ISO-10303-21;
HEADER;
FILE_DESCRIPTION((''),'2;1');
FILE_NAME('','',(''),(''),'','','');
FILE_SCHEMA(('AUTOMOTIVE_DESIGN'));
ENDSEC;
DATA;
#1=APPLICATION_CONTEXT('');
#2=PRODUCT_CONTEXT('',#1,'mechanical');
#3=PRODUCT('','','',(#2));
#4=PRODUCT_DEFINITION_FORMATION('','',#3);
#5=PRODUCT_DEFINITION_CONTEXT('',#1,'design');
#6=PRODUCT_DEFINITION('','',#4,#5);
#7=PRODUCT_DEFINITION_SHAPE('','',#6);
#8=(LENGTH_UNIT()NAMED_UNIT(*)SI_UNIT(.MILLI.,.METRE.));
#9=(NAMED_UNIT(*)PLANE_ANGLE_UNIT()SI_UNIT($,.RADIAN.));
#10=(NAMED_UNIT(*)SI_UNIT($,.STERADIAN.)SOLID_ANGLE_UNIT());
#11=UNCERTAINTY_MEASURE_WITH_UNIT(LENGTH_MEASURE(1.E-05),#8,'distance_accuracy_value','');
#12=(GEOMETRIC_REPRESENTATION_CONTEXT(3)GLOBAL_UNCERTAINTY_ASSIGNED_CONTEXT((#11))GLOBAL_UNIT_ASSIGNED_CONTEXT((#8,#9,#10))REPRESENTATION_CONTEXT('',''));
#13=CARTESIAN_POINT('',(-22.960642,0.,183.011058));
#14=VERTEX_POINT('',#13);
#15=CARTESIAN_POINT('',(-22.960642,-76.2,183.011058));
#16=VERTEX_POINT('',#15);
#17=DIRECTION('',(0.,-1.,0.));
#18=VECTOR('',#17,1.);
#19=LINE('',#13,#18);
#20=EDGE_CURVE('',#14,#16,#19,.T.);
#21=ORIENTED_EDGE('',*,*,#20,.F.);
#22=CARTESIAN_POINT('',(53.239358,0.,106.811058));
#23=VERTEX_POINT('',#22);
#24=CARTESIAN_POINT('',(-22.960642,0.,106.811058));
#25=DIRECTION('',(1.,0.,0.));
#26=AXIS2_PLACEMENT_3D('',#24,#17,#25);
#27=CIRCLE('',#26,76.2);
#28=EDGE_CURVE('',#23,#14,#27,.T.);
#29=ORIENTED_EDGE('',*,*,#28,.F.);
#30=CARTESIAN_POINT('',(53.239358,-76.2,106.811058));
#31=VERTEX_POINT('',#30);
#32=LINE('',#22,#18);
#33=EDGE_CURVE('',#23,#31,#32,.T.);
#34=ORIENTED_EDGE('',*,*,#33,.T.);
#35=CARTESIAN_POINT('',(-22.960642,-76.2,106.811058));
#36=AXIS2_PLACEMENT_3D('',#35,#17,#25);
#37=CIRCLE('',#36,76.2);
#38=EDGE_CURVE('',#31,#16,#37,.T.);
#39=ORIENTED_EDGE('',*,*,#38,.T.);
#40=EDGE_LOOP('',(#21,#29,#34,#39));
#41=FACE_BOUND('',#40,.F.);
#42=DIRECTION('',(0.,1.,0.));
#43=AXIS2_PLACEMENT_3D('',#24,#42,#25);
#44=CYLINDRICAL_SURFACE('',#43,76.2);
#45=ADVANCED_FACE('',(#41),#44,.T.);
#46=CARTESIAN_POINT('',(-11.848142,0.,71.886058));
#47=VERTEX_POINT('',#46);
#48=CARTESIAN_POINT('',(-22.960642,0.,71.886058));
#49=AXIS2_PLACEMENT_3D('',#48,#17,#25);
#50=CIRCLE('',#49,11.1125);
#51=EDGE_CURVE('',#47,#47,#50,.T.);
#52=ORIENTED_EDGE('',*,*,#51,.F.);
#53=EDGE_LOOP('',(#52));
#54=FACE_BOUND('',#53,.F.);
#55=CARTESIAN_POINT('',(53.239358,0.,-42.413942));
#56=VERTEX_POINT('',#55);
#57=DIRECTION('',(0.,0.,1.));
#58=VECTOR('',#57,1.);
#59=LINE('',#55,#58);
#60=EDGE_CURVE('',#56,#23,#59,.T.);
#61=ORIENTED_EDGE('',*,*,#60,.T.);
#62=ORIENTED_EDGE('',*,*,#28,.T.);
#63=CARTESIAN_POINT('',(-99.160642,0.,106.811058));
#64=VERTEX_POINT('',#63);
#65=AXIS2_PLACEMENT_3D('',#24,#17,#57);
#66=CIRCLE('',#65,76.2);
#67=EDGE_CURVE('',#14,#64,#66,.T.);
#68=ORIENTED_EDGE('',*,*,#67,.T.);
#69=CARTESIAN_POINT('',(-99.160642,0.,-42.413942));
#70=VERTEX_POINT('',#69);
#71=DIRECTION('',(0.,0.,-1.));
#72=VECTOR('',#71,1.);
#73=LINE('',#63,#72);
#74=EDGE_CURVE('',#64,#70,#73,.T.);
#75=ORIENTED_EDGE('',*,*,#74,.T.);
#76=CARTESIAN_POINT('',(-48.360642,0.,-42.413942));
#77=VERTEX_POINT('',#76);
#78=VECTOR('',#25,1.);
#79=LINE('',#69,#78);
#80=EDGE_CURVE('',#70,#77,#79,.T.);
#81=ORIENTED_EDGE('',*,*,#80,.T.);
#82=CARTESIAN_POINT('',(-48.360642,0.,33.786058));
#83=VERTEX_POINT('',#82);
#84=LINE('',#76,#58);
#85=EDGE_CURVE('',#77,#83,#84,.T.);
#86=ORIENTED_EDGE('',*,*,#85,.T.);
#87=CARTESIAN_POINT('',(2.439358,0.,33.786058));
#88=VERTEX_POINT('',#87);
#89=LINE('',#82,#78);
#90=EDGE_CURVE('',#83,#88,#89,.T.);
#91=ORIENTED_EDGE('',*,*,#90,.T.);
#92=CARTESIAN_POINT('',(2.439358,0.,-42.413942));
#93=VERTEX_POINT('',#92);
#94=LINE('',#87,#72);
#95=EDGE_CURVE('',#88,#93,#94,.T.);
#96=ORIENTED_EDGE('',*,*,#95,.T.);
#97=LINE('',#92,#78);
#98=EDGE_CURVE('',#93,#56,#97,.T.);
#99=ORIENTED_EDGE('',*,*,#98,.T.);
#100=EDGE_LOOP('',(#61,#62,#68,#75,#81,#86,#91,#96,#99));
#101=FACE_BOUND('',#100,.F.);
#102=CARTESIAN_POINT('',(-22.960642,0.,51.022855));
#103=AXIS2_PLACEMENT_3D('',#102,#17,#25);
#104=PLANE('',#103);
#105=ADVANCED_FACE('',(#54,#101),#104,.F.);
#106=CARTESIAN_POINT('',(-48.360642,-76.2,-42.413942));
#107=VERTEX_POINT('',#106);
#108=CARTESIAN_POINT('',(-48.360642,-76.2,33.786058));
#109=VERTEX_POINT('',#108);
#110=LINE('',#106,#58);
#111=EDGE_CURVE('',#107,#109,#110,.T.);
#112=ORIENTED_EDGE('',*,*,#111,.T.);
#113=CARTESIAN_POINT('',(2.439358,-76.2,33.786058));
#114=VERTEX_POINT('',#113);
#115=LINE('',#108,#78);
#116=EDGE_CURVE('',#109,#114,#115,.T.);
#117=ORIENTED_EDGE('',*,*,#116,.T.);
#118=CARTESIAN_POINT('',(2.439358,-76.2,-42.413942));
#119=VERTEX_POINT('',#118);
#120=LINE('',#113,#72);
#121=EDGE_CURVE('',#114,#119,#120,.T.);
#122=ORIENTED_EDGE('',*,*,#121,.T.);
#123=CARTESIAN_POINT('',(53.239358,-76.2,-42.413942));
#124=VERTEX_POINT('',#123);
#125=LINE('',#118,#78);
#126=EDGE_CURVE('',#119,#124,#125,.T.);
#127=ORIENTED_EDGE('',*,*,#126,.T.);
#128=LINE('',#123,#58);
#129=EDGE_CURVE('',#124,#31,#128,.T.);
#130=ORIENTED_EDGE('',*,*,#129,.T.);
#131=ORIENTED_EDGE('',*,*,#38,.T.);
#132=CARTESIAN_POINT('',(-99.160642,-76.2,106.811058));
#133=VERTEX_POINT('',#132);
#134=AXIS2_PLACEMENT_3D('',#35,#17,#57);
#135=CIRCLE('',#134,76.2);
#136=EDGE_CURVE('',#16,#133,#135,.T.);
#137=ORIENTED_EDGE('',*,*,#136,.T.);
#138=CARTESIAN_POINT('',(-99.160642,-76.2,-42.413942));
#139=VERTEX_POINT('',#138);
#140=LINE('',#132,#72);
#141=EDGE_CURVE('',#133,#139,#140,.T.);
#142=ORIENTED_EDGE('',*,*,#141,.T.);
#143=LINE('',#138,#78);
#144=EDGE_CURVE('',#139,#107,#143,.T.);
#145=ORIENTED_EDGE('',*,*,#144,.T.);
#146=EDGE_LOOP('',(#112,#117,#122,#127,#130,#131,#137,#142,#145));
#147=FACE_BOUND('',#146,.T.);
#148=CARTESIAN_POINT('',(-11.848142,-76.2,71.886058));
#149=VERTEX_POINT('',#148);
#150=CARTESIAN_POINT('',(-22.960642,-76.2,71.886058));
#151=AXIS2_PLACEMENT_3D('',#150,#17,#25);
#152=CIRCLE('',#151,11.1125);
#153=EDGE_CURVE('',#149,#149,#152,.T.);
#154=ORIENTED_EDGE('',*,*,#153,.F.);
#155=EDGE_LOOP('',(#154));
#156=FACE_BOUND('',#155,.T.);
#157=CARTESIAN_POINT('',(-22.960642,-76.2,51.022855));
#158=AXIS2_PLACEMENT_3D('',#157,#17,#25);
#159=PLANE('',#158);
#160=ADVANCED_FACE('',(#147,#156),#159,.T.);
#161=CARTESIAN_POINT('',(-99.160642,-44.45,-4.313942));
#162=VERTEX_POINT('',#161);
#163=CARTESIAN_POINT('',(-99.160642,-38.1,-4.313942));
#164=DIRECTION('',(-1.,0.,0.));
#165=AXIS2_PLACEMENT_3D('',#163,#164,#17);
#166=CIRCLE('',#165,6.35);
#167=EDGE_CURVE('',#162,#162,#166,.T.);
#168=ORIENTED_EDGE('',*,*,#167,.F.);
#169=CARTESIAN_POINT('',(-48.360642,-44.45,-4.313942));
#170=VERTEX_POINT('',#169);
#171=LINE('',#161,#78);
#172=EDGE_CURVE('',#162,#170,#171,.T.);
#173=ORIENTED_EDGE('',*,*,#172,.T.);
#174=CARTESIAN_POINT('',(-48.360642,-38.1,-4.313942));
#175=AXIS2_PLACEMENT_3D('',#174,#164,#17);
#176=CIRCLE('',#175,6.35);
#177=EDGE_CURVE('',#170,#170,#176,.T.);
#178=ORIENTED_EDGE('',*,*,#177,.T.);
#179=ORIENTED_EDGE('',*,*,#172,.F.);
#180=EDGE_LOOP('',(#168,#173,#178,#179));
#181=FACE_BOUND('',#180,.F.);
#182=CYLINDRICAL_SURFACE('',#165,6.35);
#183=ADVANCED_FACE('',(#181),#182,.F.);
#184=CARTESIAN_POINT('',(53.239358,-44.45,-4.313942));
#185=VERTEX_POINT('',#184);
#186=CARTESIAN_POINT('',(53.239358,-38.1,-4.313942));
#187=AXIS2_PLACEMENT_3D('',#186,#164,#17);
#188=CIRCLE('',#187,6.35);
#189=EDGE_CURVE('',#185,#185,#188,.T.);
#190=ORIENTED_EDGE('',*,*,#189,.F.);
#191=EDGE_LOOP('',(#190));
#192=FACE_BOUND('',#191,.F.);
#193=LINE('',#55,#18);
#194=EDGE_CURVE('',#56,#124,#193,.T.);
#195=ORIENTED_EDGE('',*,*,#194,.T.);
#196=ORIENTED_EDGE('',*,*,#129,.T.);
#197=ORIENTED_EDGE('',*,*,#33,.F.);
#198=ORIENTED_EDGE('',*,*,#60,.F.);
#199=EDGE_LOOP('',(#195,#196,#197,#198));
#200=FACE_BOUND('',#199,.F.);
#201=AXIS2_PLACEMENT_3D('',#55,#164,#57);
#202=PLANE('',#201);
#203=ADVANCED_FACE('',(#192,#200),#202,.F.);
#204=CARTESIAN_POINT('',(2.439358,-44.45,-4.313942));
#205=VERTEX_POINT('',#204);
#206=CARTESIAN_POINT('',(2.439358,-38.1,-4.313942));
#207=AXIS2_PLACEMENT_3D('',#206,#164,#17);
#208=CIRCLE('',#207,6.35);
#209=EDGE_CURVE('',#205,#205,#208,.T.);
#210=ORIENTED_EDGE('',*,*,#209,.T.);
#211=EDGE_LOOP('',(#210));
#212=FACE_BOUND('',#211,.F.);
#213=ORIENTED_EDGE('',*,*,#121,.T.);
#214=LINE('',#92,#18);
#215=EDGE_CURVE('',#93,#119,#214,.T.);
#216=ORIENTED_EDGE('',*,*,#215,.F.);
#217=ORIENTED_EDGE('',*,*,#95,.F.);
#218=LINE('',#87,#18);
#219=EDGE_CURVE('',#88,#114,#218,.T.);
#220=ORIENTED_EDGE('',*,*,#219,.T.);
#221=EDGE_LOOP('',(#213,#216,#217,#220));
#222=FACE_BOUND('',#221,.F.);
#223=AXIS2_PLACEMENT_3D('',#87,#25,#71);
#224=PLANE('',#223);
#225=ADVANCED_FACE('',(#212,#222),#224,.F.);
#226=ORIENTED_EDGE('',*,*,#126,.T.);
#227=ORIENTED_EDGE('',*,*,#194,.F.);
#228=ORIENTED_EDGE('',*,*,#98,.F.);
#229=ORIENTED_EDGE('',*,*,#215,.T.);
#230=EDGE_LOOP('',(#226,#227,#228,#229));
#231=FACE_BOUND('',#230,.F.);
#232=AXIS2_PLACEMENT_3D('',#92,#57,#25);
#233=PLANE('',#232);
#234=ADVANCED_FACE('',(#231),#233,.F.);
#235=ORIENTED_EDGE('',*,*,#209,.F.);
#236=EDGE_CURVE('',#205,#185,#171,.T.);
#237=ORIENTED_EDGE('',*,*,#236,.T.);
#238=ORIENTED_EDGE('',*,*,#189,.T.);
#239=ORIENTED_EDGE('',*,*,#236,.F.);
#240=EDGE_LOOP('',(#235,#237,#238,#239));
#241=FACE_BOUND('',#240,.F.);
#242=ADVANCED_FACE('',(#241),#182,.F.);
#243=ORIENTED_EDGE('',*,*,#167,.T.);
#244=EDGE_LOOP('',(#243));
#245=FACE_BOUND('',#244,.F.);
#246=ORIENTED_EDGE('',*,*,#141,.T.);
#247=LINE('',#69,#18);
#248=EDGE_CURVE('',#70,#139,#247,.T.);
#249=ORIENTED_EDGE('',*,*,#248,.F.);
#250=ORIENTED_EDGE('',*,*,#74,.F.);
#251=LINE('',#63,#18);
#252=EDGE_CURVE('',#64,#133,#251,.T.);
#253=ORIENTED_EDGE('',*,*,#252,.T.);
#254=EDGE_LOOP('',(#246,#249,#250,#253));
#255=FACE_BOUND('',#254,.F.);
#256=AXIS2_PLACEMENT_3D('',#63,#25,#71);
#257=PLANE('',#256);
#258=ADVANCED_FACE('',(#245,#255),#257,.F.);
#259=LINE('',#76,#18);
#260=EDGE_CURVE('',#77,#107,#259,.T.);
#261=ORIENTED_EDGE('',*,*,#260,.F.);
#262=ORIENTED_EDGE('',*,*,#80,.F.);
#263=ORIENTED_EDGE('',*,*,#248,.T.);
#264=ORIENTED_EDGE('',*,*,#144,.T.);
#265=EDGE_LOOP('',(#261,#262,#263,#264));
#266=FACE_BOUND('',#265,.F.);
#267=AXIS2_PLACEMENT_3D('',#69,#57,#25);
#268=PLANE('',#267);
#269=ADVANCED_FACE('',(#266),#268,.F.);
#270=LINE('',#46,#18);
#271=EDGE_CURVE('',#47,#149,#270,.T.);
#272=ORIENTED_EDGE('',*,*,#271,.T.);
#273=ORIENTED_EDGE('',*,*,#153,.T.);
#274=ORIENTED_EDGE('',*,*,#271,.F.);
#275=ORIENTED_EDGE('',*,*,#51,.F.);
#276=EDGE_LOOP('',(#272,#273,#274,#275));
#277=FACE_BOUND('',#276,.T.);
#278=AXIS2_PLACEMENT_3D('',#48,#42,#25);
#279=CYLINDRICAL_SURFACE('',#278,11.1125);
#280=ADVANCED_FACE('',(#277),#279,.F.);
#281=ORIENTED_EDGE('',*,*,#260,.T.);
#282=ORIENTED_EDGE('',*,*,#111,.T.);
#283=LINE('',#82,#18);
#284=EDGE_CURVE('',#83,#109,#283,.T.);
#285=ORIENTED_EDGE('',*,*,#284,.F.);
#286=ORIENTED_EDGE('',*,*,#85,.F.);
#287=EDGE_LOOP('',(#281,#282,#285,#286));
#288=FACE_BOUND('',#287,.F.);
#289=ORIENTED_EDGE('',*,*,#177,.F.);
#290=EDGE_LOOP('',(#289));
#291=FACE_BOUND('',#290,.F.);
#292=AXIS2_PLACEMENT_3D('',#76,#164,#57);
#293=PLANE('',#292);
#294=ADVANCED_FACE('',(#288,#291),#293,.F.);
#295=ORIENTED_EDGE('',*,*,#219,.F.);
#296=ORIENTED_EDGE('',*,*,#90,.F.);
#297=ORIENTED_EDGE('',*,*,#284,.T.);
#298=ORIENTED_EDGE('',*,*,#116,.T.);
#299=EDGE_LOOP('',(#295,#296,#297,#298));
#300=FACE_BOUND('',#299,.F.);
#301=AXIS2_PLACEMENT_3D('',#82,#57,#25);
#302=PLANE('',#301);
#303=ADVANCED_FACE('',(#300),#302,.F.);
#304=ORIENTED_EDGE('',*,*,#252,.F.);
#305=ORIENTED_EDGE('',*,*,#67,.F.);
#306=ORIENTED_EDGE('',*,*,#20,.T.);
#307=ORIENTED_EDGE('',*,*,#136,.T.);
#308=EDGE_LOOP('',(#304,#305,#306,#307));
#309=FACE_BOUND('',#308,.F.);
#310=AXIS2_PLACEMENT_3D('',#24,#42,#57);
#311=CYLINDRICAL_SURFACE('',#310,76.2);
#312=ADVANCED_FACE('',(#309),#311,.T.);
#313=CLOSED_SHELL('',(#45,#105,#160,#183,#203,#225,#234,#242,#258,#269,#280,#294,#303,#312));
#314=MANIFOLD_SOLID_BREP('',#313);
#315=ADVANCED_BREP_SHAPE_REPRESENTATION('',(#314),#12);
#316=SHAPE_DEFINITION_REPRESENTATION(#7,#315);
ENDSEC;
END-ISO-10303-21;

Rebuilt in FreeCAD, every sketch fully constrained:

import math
import FreeCAD as App
import Part
import Sketcher

V = App.Vector
Q = App.Units.Quantity

doc = App.newDocument("Part")
body = doc.addObject("PartDesign::Body", "Body")

sketch1 = body.newObject("Sketcher::SketchObject", "Sketch")
sketch1.AttachmentSupport = (doc.getObject("XZ_Plane"), [""])
sketch1.MapMode = "FlatFace"
sketch1.addGeometry(Part.LineSegment(V(-99, 107, 0), V(-99, -42, 0)), False)
sketch1.addGeometry(Part.LineSegment(V(-99, -42, 0), V(-48, -42, 0)), False)
sketch1.addGeometry(Part.LineSegment(V(-48, -42, 0), V(-48, 34, 0)), False)
sketch1.addGeometry(Part.LineSegment(V(-48, 34, 0), V(2, 34, 0)), False)
sketch1.addGeometry(Part.LineSegment(V(2, 34, 0), V(2, -42, 0)), False)
sketch1.addGeometry(Part.LineSegment(V(2, -42, 0), V(53, -42, 0)), False)
sketch1.addGeometry(Part.LineSegment(V(53, -42, 0), V(53, 107, 0)), False)
sketch1.addGeometry(Part.ArcOfCircle(Part.Circle(V(-23, 107, 0), V(0, 0, 1), 76), math.radians(0), math.radians(90)), False)
sketch1.addGeometry(Part.ArcOfCircle(Part.Circle(V(-23, 107, 0), V(0, 0, 1), 76), math.radians(90), math.radians(180)), False)
sketch1.addGeometry(Part.Circle(V(-23, 72, 0), V(0, 0, 1), 11), False)
sketch1.addConstraint(Sketcher.Constraint("Coincident", 0, 2, 1, 1))
sketch1.addConstraint(Sketcher.Constraint("Coincident", 1, 2, 2, 1))
sketch1.addConstraint(Sketcher.Constraint("Coincident", 2, 2, 3, 1))
sketch1.addConstraint(Sketcher.Constraint("Coincident", 3, 2, 4, 1))
sketch1.addConstraint(Sketcher.Constraint("Coincident", 4, 2, 5, 1))
sketch1.addConstraint(Sketcher.Constraint("Coincident", 5, 2, 6, 1))
sketch1.addConstraint(Sketcher.Constraint("Tangent", 6, 2, 7, 1))
sketch1.addConstraint(Sketcher.Constraint("Tangent", 7, 2, 8, 1))
sketch1.addConstraint(Sketcher.Constraint("Tangent", 8, 2, 0, 1))
sketch1.addConstraint(Sketcher.Constraint("Vertical", 0))
sketch1.addConstraint(Sketcher.Constraint("Horizontal", 1))
sketch1.addConstraint(Sketcher.Constraint("Vertical", 2))
sketch1.addConstraint(Sketcher.Constraint("Horizontal", 3))
sketch1.addConstraint(Sketcher.Constraint("Vertical", 4))
sketch1.addConstraint(Sketcher.Constraint("Horizontal", 5))
sketch1.addConstraint(Sketcher.Constraint("Vertical", 6))
sketch1.addConstraint(Sketcher.Constraint("Equal", 7, 8))
sketch1.addConstraint(Sketcher.Constraint("Horizontal", 1, 2, 4, 2))
sketch1.addConstraint(Sketcher.Constraint("Vertical", 8, 3, 9, 3))
sketch1.addConstraint(Sketcher.Constraint("Vertical", 9, 3, 7, 2))
sketch1.addConstraint(Sketcher.Constraint("Equal", 1, 3))
sketch1.addConstraint(Sketcher.Constraint("Equal", 3, 5))
sketch1.addConstraint(Sketcher.Constraint("Radius", 7, Q("3 in")))
sketch1.addConstraint(Sketcher.Constraint("DistanceY", 2, 1, 2, 2, Q("3 in")))
sketch1.addConstraint(Sketcher.Constraint("Diameter", 9, Q("0.875 in")))
sketch1.addConstraint(Sketcher.Constraint("DistanceY", 0, 2, 9, 3, Q("4.5 in")))
sketch1.addConstraint(Sketcher.Constraint("DistanceY", 0, 2, 0, 1, Q("5.875 in")))
sketch1.addConstraint(Sketcher.Constraint("DistanceY", -1, 1, 7, 3, Q("106.811058 mm")))
sketch1.addConstraint(Sketcher.Constraint("DistanceX", 7, 3, -1, 1, Q("22.960642 mm")))
pad1 = body.newObject("PartDesign::Pad", "Pad")
pad1.Profile = sketch1
pad1.Length = Q("3 in")

sketch2 = body.newObject("Sketcher::SketchObject", "Sketch001")
sketch2.AttachmentSupport = (doc.getObject("YZ_Plane"), [""])
sketch2.MapMode = "FlatFace"
sketch2.AttachmentOffset = App.Placement(V(0, 0, -99.160642), App.Rotation())
sketch2.addGeometry(Part.Circle(V(-38, -4, 0), V(0, 0, 1), 6), False)
sketch2.addConstraint(Sketcher.Constraint("Diameter", 0, Q("0.5 in")))
sketch2.addConstraint(Sketcher.Constraint("DistanceX", 0, 3, -1, 1, Q("1.5 in")))
sketch2.addConstraint(Sketcher.Constraint("DistanceY", 0, 3, -1, 1, Q("4.313942 mm")))
pocket1 = body.newObject("PartDesign::Pocket", "Pocket")
pocket1.Profile = sketch2
pocket1.Length = Q("10 in")
pocket1.Reversed = True

doc.recompute()
